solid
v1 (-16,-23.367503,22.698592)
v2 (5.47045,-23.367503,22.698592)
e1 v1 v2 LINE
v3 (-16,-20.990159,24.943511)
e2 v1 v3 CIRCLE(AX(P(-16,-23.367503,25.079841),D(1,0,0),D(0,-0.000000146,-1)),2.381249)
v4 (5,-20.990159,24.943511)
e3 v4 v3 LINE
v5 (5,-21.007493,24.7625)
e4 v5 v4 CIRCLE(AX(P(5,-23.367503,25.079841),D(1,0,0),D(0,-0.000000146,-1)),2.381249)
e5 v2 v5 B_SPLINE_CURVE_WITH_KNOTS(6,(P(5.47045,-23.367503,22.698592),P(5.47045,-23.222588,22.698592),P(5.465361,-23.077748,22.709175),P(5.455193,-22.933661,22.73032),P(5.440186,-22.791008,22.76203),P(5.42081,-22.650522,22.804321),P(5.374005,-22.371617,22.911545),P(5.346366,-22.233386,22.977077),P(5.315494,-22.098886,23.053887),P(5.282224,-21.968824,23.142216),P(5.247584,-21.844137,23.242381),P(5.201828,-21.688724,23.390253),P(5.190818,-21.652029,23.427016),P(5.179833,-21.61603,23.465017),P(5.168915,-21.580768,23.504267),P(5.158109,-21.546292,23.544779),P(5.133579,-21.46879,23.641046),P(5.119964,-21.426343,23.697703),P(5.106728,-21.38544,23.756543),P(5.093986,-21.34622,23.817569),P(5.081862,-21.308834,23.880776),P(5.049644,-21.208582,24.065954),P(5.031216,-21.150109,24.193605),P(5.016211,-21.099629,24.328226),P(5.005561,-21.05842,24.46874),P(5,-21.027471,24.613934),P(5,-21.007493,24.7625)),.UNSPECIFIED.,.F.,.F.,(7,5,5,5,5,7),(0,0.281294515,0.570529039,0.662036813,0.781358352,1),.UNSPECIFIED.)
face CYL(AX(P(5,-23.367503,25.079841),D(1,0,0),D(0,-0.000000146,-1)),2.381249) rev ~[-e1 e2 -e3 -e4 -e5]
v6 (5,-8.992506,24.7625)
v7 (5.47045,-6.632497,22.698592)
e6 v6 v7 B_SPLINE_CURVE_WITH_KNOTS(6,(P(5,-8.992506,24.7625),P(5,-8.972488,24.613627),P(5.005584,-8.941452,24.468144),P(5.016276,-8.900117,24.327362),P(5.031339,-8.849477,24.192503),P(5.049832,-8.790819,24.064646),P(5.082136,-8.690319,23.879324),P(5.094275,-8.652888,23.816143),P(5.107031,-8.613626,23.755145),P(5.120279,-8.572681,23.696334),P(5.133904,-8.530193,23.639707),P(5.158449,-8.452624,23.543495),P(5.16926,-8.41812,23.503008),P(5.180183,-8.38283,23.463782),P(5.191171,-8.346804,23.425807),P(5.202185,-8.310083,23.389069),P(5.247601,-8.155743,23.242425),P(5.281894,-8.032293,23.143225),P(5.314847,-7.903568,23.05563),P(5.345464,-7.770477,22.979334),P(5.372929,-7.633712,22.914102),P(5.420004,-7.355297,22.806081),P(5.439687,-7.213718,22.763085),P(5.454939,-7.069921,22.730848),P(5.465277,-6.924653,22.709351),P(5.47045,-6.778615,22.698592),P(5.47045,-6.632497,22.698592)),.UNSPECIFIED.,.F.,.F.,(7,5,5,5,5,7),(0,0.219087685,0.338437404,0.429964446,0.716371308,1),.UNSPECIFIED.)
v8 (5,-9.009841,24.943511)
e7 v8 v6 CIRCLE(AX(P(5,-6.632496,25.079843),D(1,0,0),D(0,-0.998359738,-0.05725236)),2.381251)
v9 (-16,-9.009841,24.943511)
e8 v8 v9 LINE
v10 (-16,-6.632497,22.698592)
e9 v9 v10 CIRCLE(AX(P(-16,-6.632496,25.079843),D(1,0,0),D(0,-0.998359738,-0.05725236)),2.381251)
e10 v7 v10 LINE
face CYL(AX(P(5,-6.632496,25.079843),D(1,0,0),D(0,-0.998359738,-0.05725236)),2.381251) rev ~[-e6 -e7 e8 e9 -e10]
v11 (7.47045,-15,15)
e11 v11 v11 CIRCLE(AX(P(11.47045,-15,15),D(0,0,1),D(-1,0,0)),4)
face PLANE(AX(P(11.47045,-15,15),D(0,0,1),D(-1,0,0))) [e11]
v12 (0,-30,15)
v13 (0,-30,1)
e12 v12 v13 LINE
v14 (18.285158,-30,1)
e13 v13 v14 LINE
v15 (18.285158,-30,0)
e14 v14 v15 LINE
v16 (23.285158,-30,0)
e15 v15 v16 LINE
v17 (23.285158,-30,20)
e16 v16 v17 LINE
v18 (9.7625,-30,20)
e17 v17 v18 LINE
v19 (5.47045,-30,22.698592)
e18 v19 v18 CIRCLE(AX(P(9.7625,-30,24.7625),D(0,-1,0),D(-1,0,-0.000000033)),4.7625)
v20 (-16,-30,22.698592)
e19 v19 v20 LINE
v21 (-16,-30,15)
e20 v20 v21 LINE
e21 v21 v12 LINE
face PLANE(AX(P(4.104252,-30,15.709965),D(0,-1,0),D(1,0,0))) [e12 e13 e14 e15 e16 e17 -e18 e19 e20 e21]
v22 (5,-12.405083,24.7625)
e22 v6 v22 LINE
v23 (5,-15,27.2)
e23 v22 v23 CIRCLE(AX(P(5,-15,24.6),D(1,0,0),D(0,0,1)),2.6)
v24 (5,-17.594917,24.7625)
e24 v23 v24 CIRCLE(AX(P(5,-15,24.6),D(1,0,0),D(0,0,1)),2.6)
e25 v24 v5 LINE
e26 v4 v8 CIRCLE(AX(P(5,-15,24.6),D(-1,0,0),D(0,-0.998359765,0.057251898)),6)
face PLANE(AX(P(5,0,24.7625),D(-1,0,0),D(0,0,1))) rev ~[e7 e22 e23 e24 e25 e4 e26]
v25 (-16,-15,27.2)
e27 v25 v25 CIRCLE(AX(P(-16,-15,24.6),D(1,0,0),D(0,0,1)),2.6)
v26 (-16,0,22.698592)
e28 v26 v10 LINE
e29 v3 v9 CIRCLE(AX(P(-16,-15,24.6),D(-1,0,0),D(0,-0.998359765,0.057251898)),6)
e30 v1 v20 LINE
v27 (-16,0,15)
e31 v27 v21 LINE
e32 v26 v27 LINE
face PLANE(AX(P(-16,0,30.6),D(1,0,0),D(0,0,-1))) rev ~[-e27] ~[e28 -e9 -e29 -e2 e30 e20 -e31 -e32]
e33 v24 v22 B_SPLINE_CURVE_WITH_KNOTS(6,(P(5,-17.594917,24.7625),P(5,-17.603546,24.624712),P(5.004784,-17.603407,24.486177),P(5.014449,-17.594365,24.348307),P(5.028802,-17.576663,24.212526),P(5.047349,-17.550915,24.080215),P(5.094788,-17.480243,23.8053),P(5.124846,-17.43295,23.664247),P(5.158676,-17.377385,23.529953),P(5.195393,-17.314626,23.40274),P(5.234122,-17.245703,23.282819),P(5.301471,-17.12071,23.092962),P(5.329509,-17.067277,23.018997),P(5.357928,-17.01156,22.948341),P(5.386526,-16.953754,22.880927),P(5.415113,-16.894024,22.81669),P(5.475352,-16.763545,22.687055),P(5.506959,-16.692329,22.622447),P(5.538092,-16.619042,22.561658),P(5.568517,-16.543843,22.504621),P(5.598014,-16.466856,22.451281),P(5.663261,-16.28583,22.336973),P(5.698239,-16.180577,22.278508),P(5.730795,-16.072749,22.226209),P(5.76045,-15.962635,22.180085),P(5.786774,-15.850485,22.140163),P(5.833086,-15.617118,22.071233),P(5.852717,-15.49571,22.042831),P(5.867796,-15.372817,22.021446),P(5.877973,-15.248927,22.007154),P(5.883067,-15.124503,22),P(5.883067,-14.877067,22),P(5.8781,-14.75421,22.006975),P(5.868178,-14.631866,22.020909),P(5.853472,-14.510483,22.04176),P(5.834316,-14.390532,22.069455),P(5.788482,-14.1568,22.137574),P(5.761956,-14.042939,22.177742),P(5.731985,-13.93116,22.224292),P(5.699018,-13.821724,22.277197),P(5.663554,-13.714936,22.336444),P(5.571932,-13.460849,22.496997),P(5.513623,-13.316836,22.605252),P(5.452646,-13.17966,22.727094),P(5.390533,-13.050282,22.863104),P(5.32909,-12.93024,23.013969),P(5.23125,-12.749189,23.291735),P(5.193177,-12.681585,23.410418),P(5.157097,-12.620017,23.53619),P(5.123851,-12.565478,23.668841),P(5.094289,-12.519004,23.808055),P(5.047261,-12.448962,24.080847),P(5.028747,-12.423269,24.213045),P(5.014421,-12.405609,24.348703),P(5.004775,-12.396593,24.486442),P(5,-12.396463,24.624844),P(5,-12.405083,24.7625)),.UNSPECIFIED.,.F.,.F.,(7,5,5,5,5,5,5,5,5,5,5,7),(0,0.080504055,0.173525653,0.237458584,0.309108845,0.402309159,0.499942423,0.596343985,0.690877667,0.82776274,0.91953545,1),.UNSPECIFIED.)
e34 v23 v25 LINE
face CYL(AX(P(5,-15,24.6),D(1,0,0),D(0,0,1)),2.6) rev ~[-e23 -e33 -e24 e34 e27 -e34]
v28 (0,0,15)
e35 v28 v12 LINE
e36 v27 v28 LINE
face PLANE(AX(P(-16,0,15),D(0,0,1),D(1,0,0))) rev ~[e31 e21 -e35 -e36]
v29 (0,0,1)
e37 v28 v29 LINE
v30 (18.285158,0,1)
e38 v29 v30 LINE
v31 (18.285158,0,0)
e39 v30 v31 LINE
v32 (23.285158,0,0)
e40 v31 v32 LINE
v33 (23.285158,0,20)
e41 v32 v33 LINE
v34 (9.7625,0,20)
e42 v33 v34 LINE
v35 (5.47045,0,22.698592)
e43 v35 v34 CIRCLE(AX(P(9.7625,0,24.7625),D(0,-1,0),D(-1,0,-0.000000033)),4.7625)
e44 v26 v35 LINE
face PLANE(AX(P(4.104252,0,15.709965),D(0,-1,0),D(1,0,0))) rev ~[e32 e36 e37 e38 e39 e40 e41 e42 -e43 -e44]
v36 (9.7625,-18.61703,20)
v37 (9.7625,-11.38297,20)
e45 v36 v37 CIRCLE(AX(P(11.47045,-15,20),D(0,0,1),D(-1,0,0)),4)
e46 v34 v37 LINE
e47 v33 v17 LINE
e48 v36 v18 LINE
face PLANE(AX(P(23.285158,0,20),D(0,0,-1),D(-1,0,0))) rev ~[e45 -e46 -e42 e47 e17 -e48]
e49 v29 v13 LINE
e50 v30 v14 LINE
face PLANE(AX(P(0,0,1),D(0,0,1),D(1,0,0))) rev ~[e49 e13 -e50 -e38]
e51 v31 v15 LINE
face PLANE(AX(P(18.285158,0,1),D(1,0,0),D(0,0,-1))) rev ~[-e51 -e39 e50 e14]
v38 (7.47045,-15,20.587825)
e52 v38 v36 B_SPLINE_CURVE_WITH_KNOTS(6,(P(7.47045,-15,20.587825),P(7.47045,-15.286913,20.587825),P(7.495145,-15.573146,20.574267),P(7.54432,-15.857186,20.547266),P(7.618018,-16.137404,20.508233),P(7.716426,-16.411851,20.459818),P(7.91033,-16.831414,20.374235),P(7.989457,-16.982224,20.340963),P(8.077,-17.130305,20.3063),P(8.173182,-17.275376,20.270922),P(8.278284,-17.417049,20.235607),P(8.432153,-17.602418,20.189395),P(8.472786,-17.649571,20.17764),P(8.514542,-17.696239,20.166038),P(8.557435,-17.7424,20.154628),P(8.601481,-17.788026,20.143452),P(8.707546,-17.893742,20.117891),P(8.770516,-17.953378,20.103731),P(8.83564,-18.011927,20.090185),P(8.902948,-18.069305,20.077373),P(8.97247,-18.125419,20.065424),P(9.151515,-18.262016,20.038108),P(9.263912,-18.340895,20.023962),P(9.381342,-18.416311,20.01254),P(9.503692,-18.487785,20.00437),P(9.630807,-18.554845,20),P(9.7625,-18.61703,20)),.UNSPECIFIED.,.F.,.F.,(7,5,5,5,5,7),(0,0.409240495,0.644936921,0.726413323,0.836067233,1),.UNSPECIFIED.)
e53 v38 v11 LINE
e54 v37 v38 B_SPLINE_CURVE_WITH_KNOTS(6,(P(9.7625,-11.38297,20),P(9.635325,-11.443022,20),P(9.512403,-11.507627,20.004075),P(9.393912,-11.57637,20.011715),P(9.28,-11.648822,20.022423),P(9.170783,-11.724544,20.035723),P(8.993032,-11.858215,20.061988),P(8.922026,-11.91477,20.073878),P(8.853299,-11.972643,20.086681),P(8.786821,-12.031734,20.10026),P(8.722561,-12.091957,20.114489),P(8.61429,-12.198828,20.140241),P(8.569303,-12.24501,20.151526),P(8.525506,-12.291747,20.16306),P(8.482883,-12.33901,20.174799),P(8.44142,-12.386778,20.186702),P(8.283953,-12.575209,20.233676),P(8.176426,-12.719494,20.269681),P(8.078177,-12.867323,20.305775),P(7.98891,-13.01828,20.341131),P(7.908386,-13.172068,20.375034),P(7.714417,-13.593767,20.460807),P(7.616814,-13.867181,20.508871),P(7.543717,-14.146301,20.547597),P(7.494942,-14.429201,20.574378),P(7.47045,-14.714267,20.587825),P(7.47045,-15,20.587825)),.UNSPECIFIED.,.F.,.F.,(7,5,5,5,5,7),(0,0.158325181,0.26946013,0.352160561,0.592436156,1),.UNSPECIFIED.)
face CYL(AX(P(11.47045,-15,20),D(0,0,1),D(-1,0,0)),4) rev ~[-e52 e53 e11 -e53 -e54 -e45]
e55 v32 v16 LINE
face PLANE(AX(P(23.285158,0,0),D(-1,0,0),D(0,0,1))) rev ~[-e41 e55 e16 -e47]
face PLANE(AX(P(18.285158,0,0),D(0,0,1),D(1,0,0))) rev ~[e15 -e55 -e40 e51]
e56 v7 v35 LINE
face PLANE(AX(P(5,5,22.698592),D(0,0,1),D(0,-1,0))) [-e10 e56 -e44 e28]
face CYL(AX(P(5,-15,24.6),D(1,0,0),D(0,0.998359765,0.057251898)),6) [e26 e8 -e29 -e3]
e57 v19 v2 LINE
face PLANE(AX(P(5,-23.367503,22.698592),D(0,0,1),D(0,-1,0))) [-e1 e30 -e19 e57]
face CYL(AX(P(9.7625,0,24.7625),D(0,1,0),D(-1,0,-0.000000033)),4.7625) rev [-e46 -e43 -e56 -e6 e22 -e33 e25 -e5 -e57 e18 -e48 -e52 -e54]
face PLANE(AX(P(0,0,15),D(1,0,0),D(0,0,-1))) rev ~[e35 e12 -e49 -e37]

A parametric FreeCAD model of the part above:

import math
import FreeCAD as App
import Part
import Sketcher

V = App.Vector
Q = App.Units.Quantity

doc = App.newDocument("Part")
params = doc.addObject("Spreadsheet::Sheet", "Params")
for row, (alias, value) in enumerate([
    ("sketch1_width", "16 mm"),
    ("sketch1_width2", "5 mm"),
    ("sketch1_width3", "21 mm"),
    ("sketch1_height", "14 mm"),
    ("sketch1_height2", "1 mm"),
    ("pad1_length", "30 mm"),
    ("sketch2_radius", "6 mm"),
    ("sketch2_width", "40 mm"),
    ("sketch3_diameter", "5.2 mm"),
    ("sketch4_diameter", "8 mm"),
    ("pocket3_length", "5 mm"),
    ("pocket3_length2", "100 mm"),
], start=1):
    params.set(f"A{row}", alias)
    params.set(f"B{row}", "=" + value)
    params.setAlias(f"B{row}", alias)

body = doc.addObject("PartDesign::Body", "Body")

sketch1 = body.newObject("Sketcher::SketchObject", "Sketch")
sketch1.AttachmentSupport = (doc.getObject("XZ_Plane"), [""])
sketch1.MapMode = "FlatFace"
sketch1.addGeometry([
    Part.LineSegment(V(-16, 15, 0), V(0, 15, 0)),
    Part.LineSegment(V(0, 15, 0), V(0, 1, 0)),
    Part.LineSegment(V(0, 1, 0), V(18.285158, 1, 0)),
    Part.LineSegment(V(18.285158, 1, 0), V(18.285158, 0, 0)),
    Part.LineSegment(V(18.285158, 0, 0), V(23.285158, 0, 0)),
    Part.LineSegment(V(23.285158, 0, 0), V(23.285158, 20, 0)),
    Part.LineSegment(V(23.285158, 20, 0), V(9.7625, 20, 0)),
    Part.ArcOfCircle(Part.Circle(V(9.7625, 24.7625, 0), V(0, 0, 1), 4.7625), math.radians(-179.999998), math.radians(-90.000002)),
    Part.LineSegment(V(5, 24.7625, 0), V(5, 30.6, 0)),
    Part.LineSegment(V(5, 30.6, 0), V(-16, 30.6, 0)),
    Part.LineSegment(V(-16, 30.6, 0), V(-16, 15, 0)),
], False)
sketch1.addConstraint([
    Sketcher.Constraint("Coincident", 0, 2, 1, 1),
    Sketcher.Constraint("Coincident", 1, 2, 2, 1),
    Sketcher.Constraint("Coincident", 2, 2, 3, 1),
    Sketcher.Constraint("Coincident", 3, 2, 4, 1),
    Sketcher.Constraint("Coincident", 4, 2, 5, 1),
    Sketcher.Constraint("Coincident", 5, 2, 6, 1),
    Sketcher.Constraint("Tangent", 6, 2, 7, 2),
    Sketcher.Constraint("Tangent", 7, 1, 8, 1),
    Sketcher.Constraint("Coincident", 8, 2, 9, 1),
    Sketcher.Constraint("Coincident", 9, 2, 10, 1),
    Sketcher.Constraint("Coincident", 10, 2, 0, 1),
    Sketcher.Constraint("Horizontal", 0),
    Sketcher.Constraint("Vertical", 1),
    Sketcher.Constraint("Horizontal", 2),
    Sketcher.Constraint("Vertical", 3),
    Sketcher.Constraint("Horizontal", 4),
    Sketcher.Constraint("Vertical", 5),
    Sketcher.Constraint("Horizontal", 6),
    Sketcher.Constraint("Vertical", 8),
    Sketcher.Constraint("Horizontal", 9),
    Sketcher.Constraint("Vertical", 10),
    Sketcher.Constraint("PointOnObject", 0, 2, -2),
    Sketcher.Constraint("PointOnObject", 3, 2, -1),
    Sketcher.Constraint("DistanceX", 0, 1, 0, 2, Q("16 mm")),
    Sketcher.Constraint("DistanceX", 4, 1, 4, 2, Q("5 mm")),
    Sketcher.Constraint("DistanceX", 9, 2, 9, 1, Q("21 mm")),
    Sketcher.Constraint("DistanceY", 1, 2, 1, 1, Q("14 mm")),
    Sketcher.Constraint("DistanceY", 3, 2, 3, 1, Q("1 mm")),
    Sketcher.Constraint("DistanceY", 5, 1, 5, 2, Q("20 mm")),
    Sketcher.Constraint("DistanceY", 10, 2, 10, 1, Q("15.6 mm")),
    Sketcher.Constraint("Radius", 7, Q("4.7625 mm")),
    Sketcher.Constraint("DistanceX", 2, 1, 2, 2, Q("18.285158 mm")),
])
sketch1.setExpression("Constraints[23]", "Params.sketch1_width")
sketch1.setExpression("Constraints[24]", "Params.sketch1_width2")
sketch1.setExpression("Constraints[25]", "Params.sketch1_width3")
sketch1.setExpression("Constraints[26]", "Params.sketch1_height")
sketch1.setExpression("Constraints[27]", "Params.sketch1_height2")
pad1 = body.newObject("PartDesign::Pad", "Pad")
pad1.Profile = sketch1
pad1.setExpression("Length", "Params.pad1_length")

sketch2 = body.newObject("Sketcher::SketchObject", "Sketch001")
sketch2.AttachmentSupport = (doc.getObject("YZ_Plane"), [""])
sketch2.MapMode = "FlatFace"
sketch2.AttachmentOffset = App.Placement(V(0, 0, 5), App.Rotation())
sketch2.addGeometry([
    Part.ArcOfCircle(Part.Circle(V(-15, 24.6, 0), V(0, 0, 1), 6), math.radians(3.282087), math.radians(176.717913)),
    Part.ArcOfCircle(Part.Circle(V(-6.632496, 25.079843, 0), V(0, 0, 1), 2.381251), math.radians(-176.717887), math.radians(-90.000033)),
    Part.LineSegment(V(-6.632497, 22.698592, 0), V(5, 22.698592, 0)),
    Part.LineSegment(V(5, 22.698592, 0), V(5, 35.6, 0)),
    Part.LineSegment(V(5, 35.6, 0), V(-35, 35.6, 0)),
    Part.LineSegment(V(-35, 35.6, 0), V(-35, 22.698592, 0)),
    Part.LineSegment(V(-35, 22.698592, 0), V(-23.367503, 22.698592, 0)),
    Part.ArcOfCircle(Part.Circle(V(-23.367503, 25.079841, 0), V(0, 0, 1), 2.381249), math.radians(-90.000008), math.radians(-3.282072)),
], False)
sketch2.addConstraint([
    Sketcher.Constraint("Tangent", 0, 1, 1, 1),
    Sketcher.Constraint("Tangent", 1, 2, 2, 1),
    Sketcher.Constraint("Coincident", 2, 2, 3, 1),
    Sketcher.Constraint("Coincident", 3, 2, 4, 1),
    Sketcher.Constraint("Coincident", 4, 2, 5, 1),
    Sketcher.Constraint("Coincident", 5, 2, 6, 1),
    Sketcher.Constraint("Tangent", 6, 2, 7, 1),
    Sketcher.Constraint("Tangent", 7, 2, 0, 2),
    Sketcher.Constraint("Horizontal", 2),
    Sketcher.Constraint("Vertical", 3),
    Sketcher.Constraint("Horizontal", 4),
    Sketcher.Constraint("Vertical", 5),
    Sketcher.Constraint("Horizontal", 6),
    Sketcher.Constraint("Equal", 1, 7),
    Sketcher.Constraint("Horizontal", 1, 3, 7, 3),
    Sketcher.Constraint("Equal", 2, 6),
    Sketcher.Constraint("Radius", 0, Q("6 mm")),
    Sketcher.Constraint("DistanceX", 4, 2, 4, 1, Q("40 mm")),
    Sketcher.Constraint("DistanceX", 0, 3, -1, 1, Q("15 mm")),
    Sketcher.Constraint("DistanceY", 0, 3, 3, 2, Q("11 mm")),
    Sketcher.Constraint("DistanceY", -1, 1, 0, 3, Q("24.6 mm")),
    Sketcher.Constraint("Radius", 1, Q("2.381251 mm")),
    Sketcher.Constraint("DistanceX", 2, 1, 2, 2, Q("11.632497 mm")),
])
sketch2.setExpression("Constraints[16]", "Params.sketch2_radius")
sketch2.setExpression("Constraints[17]", "Params.sketch2_width")
pocket1 = body.newObject("PartDesign::Pocket", "Pocket")
pocket1.Profile = sketch2
pocket1.Type = "ThroughAll"
pocket1.Midplane = True

sketch3 = body.newObject("Sketcher::SketchObject", "Sketch002")
sketch3.AttachmentSupport = (doc.getObject("YZ_Plane"), [""])
sketch3.MapMode = "FlatFace"
sketch3.AttachmentOffset = App.Placement(V(0, 0, 5), App.Rotation())
sketch3.addGeometry(Part.Circle(V(-15, 24.6, 0), V(0, 0, 1), 2.6), False)
sketch3.addConstraint([
    Sketcher.Constraint("Diameter", 0, Q("5.2 mm")),
    Sketcher.Constraint("DistanceX", 0, 3, -1, 1, Q("15 mm")),
    Sketcher.Constraint("DistanceY", -1, 1, 0, 3, Q("24.6 mm")),
])
sketch3.setExpression("Constraints[0]", "Params.sketch3_diameter")
pocket2 = body.newObject("PartDesign::Pocket", "Pocket001")
pocket2.Profile = sketch3
pocket2.Type = "ThroughAll"
pocket2.Midplane = True

sketch4 = body.newObject("Sketcher::SketchObject", "Sketch003")
sketch4.AttachmentSupport = (doc.getObject("XY_Plane"), [""])
sketch4.MapMode = "FlatFace"
sketch4.AttachmentOffset = App.Placement(V(0, 0, 20), App.Rotation())
sketch4.addGeometry(Part.Circle(V(11.47045, -15, 0), V(0, 0, 1), 4), False)
sketch4.addConstraint([
    Sketcher.Constraint("Diameter", 0, Q("8 mm")),
    Sketcher.Constraint("DistanceY", 0, 3, -1, 1, Q("15 mm")),
    Sketcher.Constraint("DistanceX", -1, 1, 0, 3, Q("11.47045 mm")),
])
sketch4.setExpression("Constraints[0]", "Params.sketch4_diameter")
pocket3 = body.newObject("PartDesign::Pocket", "Pocket002")
pocket3.Profile = sketch4
pocket3.Type = "TwoLengths"
pocket3.setExpression("Length", "Params.pocket3_length")
pocket3.setExpression("Length2", "Params.pocket3_length2")

doc.recompute()
